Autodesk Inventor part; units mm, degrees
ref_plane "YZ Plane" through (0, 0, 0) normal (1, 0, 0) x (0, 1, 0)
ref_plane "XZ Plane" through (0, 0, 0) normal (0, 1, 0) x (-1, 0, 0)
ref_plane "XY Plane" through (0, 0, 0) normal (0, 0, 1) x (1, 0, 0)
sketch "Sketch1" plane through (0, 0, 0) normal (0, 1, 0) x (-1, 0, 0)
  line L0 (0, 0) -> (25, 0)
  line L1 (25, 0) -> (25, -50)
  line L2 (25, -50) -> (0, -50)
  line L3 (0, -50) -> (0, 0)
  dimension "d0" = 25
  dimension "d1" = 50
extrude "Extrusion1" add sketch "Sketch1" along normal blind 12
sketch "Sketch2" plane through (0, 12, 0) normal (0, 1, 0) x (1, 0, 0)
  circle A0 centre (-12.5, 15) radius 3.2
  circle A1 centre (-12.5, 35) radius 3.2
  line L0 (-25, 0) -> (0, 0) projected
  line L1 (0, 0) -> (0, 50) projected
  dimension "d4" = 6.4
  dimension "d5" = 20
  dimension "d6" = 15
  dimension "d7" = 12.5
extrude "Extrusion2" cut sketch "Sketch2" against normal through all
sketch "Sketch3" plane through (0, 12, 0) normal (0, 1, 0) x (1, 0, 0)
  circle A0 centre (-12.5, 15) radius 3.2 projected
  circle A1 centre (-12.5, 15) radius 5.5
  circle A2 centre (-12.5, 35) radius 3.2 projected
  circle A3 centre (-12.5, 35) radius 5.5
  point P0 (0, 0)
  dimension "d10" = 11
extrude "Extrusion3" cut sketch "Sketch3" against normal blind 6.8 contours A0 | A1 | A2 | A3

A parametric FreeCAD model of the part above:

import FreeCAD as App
import Part
import Sketcher
Q = App.Units.Quantity

doc = App.newDocument("Part")
body = doc.addObject("PartDesign::Body", "Body")

# Sketch on XZ plane
sketch1 = body.newObject("Sketcher::SketchObject", "Sketch")
sketch1.AttachmentSupport = (doc.getObject("XZ_Plane"), [""])
sketch1.MapMode = "FlatFace"
sketch1.addGeometry([
    Part.LineSegment(App.Vector(-25, 0, 0), App.Vector(0, 0, 0)),
    Part.LineSegment(App.Vector(0, 0, 0), App.Vector(0, -50, 0)),
    Part.LineSegment(App.Vector(0, -50, 0), App.Vector(-25, -50, 0)),
    Part.LineSegment(App.Vector(-25, -50, 0), App.Vector(-25, 0, 0)),
], False)
sketch1.addConstraint([
    Sketcher.Constraint("Coincident", 0, 2, 1, 1),
    Sketcher.Constraint("Coincident", 1, 2, 2, 1),
    Sketcher.Constraint("Coincident", 2, 2, 3, 1),
    Sketcher.Constraint("Coincident", 3, 2, 0, 1),
    Sketcher.Constraint("Horizontal", 0),
    Sketcher.Constraint("Vertical", 1),
    Sketcher.Constraint("Horizontal", 2),
    Sketcher.Constraint("Vertical", 3),
    Sketcher.Constraint("Coincident", 0, 2, -1, 1),
    Sketcher.Constraint("DistanceX", 0, 1, 0, 2, Q("25 mm")),
    Sketcher.Constraint("DistanceY", 1, 2, 1, 1, Q("50 mm")),
])
pad1 = body.newObject("PartDesign::Pad", "Pad")
pad1.Profile = sketch1
pad1.Length = 12
pad1.Reversed = True

# Sketch on XZ plane
sketch2 = body.newObject("Sketcher::SketchObject", "Sketch001")
sketch2.AttachmentSupport = (doc.getObject("XZ_Plane"), [""])
sketch2.MapMode = "FlatFace"
sketch2.AttachmentOffset = App.Placement(App.Vector(0, 0, -12), App.Rotation())
sketch2.addGeometry([
    Part.Circle(App.Vector(-12.5, -15, 0), App.Vector(0, 0, 1), 3.2),
    Part.Circle(App.Vector(-12.5, -35, 0), App.Vector(0, 0, 1), 3.2),
], False)
sketch2.addConstraint([
    Sketcher.Constraint("Equal", 0, 1),
    Sketcher.Constraint("Vertical", 0, 3, 1, 3),
    Sketcher.Constraint("Diameter", 0, Q("6.4 mm")),
    Sketcher.Constraint("DistanceY", 0, 3, -1, 1, Q("15 mm")),
    Sketcher.Constraint("DistanceY", 1, 3, 0, 3, Q("20 mm")),
    Sketcher.Constraint("DistanceX", 0, 3, -1, 1, Q("12.5 mm")),
])
pocket1 = body.newObject("PartDesign::Pocket", "Pocket")
pocket1.Profile = sketch2
pocket1.Type = "ThroughAll"
pocket1.Reversed = True

# Sketch on XZ plane
sketch3 = body.newObject("Sketcher::SketchObject", "Sketch002")
sketch3.AttachmentSupport = (doc.getObject("XZ_Plane"), [""])
sketch3.MapMode = "FlatFace"
sketch3.AttachmentOffset = App.Placement(App.Vector(0, 0, -12), App.Rotation())
sketch3.addGeometry([
    Part.Circle(App.Vector(-12, -15, 0), App.Vector(0, 0, 1), 6),
    Part.Circle(App.Vector(-12, -35, 0), App.Vector(0, 0, 1), 6),
], False)
sketch3.addConstraint([
    Sketcher.Constraint("Equal", 0, 1),
    Sketcher.Constraint("Vertical", 0, 3, 1, 3),
    Sketcher.Constraint("Diameter", 0, Q("11 mm")),
    Sketcher.Constraint("DistanceY", 0, 3, -1, 1, Q("15 mm")),
    Sketcher.Constraint("DistanceY", 1, 3, -1, 1, Q("35 mm")),
    Sketcher.Constraint("DistanceX", 0, 3, -1, 1, Q("12.5 mm")),
])
pocket2 = body.newObject("PartDesign::Pocket", "Pocket001")
pocket2.Profile = sketch3
pocket2.Length = 6.8
pocket2.Reversed = True

doc.recompute()
